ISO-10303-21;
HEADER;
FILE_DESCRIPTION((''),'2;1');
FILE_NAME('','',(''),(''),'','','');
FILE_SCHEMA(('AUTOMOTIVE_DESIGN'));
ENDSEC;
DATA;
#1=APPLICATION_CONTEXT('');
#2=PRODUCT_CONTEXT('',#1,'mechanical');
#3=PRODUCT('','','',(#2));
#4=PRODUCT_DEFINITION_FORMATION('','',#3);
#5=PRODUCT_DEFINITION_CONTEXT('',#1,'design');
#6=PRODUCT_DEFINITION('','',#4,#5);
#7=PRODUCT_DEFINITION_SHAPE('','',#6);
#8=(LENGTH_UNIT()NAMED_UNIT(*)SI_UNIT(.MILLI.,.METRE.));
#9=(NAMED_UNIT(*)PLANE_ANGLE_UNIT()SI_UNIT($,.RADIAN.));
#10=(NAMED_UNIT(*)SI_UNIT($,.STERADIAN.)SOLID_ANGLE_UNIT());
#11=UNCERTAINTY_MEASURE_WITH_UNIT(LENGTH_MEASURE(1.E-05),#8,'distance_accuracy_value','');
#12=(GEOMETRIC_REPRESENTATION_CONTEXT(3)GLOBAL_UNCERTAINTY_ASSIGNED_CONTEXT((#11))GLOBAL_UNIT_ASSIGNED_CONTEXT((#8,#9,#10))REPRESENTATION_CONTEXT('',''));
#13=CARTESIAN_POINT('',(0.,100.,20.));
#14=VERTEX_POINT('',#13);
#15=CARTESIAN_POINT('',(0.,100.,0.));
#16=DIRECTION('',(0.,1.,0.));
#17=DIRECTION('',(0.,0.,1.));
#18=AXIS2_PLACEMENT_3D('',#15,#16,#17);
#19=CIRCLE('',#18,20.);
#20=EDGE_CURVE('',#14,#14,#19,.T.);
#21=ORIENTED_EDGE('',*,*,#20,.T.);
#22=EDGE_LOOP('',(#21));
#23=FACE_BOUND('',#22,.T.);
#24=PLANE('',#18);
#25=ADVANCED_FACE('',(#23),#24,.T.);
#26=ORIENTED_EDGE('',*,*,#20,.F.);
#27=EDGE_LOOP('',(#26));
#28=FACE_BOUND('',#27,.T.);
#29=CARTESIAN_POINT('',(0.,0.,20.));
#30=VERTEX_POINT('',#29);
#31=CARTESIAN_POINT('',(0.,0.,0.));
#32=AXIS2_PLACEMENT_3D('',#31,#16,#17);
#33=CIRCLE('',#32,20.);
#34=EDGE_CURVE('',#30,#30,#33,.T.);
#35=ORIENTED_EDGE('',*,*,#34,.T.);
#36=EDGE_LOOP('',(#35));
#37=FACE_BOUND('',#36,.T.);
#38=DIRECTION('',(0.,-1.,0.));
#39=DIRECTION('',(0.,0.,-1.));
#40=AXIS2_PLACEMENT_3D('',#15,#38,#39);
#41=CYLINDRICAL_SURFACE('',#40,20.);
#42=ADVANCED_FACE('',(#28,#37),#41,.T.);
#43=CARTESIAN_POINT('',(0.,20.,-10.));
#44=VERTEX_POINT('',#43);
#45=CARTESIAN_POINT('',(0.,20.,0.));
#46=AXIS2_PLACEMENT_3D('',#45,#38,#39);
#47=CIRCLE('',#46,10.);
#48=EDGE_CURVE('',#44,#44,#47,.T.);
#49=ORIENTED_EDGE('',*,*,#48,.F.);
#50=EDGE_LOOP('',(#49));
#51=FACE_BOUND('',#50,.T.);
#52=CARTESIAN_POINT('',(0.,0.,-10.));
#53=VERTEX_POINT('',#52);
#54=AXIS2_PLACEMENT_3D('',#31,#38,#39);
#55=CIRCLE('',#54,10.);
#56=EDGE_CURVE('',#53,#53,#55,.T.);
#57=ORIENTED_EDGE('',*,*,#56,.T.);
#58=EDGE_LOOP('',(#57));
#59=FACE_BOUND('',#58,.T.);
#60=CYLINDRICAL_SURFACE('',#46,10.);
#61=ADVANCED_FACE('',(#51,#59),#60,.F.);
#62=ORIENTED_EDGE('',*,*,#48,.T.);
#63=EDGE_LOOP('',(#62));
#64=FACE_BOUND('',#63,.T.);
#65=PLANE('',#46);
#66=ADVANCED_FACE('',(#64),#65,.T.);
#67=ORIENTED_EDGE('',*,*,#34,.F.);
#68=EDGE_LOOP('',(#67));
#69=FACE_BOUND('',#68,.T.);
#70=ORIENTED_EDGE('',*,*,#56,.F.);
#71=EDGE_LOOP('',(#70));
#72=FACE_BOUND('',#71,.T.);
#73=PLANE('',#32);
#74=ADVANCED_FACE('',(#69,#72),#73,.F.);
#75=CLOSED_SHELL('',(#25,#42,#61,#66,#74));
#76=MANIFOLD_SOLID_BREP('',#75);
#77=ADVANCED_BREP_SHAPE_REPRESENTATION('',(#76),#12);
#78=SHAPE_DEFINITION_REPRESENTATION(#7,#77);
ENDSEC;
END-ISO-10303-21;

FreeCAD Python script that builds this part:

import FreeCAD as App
import Part
import Sketcher

doc = App.newDocument("Part")
params = doc.addObject("Spreadsheet::Sheet", "Params")
for row, (alias, value) in enumerate([
    ("sketch1_diameter", "40 mm"),
    ("pad1_length", "100 mm"),
    ("sketch2_diameter", "20 mm"),
    ("pocket1_length", "20 mm"),
], start=1):
    params.set(f"A{row}", alias)
    params.set(f"B{row}", "=" + value)
    params.setAlias(f"B{row}", alias)

body = doc.addObject("PartDesign::Body", "Body")

sketch1 = body.newObject("Sketcher::SketchObject", "Sketch")
sketch1.AttachmentSupport = (doc.getObject("XZ_Plane"), [""])
sketch1.MapMode = "FlatFace"
sketch1.addGeometry(Part.Circle(App.Vector(0, 0, 0), App.Vector(0, 0, 1), 20), False)
sketch1.addConstraint([
    Sketcher.Constraint("Coincident", 0, 3, -1, 1),
    Sketcher.Constraint("Diameter", 0, 40.0),
])
sketch1.setExpression("Constraints[1]", "Params.sketch1_diameter")
pad1 = body.newObject("PartDesign::Pad", "Pad")
pad1.Profile = sketch1
pad1.setExpression("Length", "Params.pad1_length")
pad1.Reversed = True

sketch2 = body.newObject("Sketcher::SketchObject", "Sketch001")
sketch2.AttachmentSupport = (doc.getObject("XZ_Plane"), [""])
sketch2.MapMode = "FlatFace"
sketch2.addGeometry(Part.Circle(App.Vector(0, 0, 0), App.Vector(0, 0, 1), 10), False)
sketch2.addConstraint([
    Sketcher.Constraint("Coincident", 0, 3, -1, 1),
    Sketcher.Constraint("Diameter", 0, 20.0),
])
sketch2.setExpression("Constraints[1]", "Params.sketch2_diameter")
pocket1 = body.newObject("PartDesign::Pocket", "Pocket")
pocket1.Profile = sketch2
pocket1.setExpression("Length", "Params.pocket1_length")

doc.recompute()
